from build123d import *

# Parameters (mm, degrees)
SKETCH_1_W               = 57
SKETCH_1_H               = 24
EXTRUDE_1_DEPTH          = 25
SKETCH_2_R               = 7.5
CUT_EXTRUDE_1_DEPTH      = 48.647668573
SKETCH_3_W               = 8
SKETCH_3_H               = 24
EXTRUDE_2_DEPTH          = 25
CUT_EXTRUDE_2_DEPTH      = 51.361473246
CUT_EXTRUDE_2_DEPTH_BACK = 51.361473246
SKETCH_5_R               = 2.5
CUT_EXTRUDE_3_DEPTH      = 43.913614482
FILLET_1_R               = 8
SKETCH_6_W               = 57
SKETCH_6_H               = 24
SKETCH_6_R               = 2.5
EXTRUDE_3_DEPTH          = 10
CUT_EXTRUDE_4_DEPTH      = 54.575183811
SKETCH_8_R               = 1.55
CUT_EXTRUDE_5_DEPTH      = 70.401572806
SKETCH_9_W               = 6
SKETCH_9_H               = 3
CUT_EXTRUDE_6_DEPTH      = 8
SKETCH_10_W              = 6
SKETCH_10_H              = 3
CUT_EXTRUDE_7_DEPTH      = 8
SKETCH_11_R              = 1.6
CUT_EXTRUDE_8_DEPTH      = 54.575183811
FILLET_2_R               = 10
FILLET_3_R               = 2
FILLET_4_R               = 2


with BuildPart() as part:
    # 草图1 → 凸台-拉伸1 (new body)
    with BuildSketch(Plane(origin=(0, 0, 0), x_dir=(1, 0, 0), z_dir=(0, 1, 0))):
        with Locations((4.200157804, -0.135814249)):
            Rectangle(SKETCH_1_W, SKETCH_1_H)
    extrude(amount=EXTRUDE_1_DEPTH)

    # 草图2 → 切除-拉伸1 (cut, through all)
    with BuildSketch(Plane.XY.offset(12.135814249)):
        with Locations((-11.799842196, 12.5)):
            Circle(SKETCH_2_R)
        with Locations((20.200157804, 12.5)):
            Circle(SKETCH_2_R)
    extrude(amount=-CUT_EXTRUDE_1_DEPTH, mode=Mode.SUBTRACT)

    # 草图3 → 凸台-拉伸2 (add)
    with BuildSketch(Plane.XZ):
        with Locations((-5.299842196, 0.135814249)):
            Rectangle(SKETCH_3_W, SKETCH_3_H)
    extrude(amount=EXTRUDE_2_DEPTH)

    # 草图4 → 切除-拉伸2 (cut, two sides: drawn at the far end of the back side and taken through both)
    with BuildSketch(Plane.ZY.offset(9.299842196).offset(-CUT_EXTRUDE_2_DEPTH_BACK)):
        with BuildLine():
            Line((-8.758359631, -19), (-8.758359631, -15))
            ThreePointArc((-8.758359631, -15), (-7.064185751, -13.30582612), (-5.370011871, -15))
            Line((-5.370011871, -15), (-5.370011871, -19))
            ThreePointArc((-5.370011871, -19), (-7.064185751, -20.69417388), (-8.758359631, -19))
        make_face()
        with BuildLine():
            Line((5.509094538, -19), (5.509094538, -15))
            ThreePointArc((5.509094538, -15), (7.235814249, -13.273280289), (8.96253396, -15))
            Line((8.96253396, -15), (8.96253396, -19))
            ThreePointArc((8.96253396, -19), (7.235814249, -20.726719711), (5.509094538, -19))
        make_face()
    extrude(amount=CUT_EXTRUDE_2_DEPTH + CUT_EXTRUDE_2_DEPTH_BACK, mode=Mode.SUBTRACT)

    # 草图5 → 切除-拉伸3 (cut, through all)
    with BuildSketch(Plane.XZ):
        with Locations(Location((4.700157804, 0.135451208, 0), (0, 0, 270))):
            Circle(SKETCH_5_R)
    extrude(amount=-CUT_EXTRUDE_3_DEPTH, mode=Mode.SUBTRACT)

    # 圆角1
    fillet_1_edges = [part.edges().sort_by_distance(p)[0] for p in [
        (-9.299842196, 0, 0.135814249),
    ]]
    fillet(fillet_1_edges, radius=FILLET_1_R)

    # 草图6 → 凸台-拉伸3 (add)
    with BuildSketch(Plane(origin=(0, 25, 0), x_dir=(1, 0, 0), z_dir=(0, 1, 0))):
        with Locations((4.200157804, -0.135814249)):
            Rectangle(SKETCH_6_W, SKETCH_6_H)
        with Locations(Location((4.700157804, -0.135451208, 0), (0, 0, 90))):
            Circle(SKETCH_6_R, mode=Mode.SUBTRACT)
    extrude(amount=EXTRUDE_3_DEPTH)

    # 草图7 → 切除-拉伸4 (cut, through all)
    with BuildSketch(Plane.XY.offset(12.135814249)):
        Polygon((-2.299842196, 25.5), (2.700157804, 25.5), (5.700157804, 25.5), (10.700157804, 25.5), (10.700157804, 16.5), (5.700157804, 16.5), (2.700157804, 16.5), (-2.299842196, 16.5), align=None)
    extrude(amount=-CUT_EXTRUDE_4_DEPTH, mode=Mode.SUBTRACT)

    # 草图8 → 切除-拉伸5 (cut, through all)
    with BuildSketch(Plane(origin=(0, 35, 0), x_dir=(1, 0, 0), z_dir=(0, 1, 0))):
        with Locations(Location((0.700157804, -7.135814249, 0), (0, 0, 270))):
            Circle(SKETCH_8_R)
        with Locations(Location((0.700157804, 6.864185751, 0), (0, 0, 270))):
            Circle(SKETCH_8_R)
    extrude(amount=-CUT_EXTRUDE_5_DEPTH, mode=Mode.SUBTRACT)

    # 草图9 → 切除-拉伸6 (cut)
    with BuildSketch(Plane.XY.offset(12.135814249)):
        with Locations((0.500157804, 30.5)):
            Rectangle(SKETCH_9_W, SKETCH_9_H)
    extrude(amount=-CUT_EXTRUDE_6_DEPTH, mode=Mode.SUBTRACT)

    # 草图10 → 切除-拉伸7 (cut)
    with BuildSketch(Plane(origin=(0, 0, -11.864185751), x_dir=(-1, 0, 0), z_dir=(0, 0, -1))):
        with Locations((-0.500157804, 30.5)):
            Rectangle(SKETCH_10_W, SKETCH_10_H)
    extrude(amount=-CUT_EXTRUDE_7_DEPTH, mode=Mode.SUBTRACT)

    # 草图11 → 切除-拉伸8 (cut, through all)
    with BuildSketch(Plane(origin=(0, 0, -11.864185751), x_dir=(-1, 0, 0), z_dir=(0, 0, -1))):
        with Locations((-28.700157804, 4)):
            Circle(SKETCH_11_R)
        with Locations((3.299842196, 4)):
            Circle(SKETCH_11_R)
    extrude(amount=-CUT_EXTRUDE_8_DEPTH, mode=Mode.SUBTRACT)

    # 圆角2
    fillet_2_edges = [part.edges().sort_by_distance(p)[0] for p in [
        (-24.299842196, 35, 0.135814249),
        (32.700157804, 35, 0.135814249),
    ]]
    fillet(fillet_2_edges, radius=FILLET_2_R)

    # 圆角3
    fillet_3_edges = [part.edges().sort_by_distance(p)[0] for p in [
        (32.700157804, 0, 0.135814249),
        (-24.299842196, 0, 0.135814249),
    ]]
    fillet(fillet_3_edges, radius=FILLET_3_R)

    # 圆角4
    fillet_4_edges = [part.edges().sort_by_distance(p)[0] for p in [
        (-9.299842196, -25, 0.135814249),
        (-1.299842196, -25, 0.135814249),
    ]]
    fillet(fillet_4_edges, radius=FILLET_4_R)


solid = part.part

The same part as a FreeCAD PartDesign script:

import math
import FreeCAD as App
import Part
import Sketcher
from FreeCAD import Vector
Q = App.Units.Quantity


def edges_at(feature, points):
    """Names of the edges that pass closest to the given points."""
    edges = feature.Shape.Edges
    near = lambda p: min(range(len(edges)), key=lambda i: edges[i].distToShape(Part.Vertex(*p))[0])
    return sorted({f"Edge{near(p) + 1}" for p in points})

doc = App.newDocument("Part")
body = doc.addObject("PartDesign::Body", "Body")

# Sketch on XZ plane
sketch1 = body.newObject("Sketcher::SketchObject", "Sketch")
sketch1.AttachmentSupport = (doc.getObject("XZ_Plane"), [""])
sketch1.MapMode = "FlatFace"
sketch1.addGeometry([
    Part.LineSegment(Vector(-24.299842, -11.864186, 0), Vector(-24.299842, 12.135814, 0)),
    Part.LineSegment(Vector(-24.299842, 12.135814, 0), Vector(32.700158, 12.135814, 0)),
    Part.LineSegment(Vector(32.700158, 12.135814, 0), Vector(32.700158, -11.864186, 0)),
    Part.LineSegment(Vector(32.700158, -11.864186, 0), Vector(-24.299842, -11.864186, 0)),
], False)
sketch1.addConstraint([
    Sketcher.Constraint("Coincident", 0, 2, 1, 1),
    Sketcher.Constraint("Coincident", 1, 2, 2, 1),
    Sketcher.Constraint("Coincident", 2, 2, 3, 1),
    Sketcher.Constraint("Coincident", 3, 2, 0, 1),
    Sketcher.Constraint("Vertical", 0),
    Sketcher.Constraint("Horizontal", 1),
    Sketcher.Constraint("Vertical", 2),
    Sketcher.Constraint("Horizontal", 3),
    Sketcher.Constraint("DistanceX", 1, 1, 1, 2, Q("57 mm")),
    Sketcher.Constraint("DistanceY", 0, 1, 0, 2, Q("24 mm")),
    Sketcher.Constraint("DistanceX", 0, 2, -1, 1, Q("24.299842 mm")),
    Sketcher.Constraint("DistanceY", -1, 1, 0, 2, Q("12.135814 mm")),
])
pad1 = body.newObject("PartDesign::Pad", "Pad")
pad1.Profile = sketch1
pad1.Length = 25
pad1.Reversed = True

# Sketch on XY plane
sketch2 = body.newObject("Sketcher::SketchObject", "Sketch001")
sketch2.AttachmentSupport = (doc.getObject("XY_Plane"), [""])
sketch2.MapMode = "FlatFace"
sketch2.AttachmentOffset = App.Placement(Vector(0, 0, 12.135814), App.Rotation())
sketch2.addGeometry([
    Part.Circle(Vector(-11.799842, 12.5, 0), Vector(0, 0, 1), 7.5),
    Part.Circle(Vector(20.200158, 12.5, 0), Vector(0, 0, 1), 7.5),
], False)
sketch2.addConstraint([
    Sketcher.Constraint("Equal", 0, 1),
    Sketcher.Constraint("Horizontal", 0, 3, 1, 3),
    Sketcher.Constraint("Diameter", 0, Q("15 mm")),
    Sketcher.Constraint("DistanceX", 0, 3, 1, 3, Q("32 mm")),
    Sketcher.Constraint("DistanceY", -1, 1, 0, 3, Q("12.5 mm")),
    Sketcher.Constraint("DistanceX", 0, 3, -1, 1, Q("11.799842 mm")),
])
pocket1 = body.newObject("PartDesign::Pocket", "Pocket")
pocket1.Profile = sketch2
pocket1.Type = "ThroughAll"

# Sketch on XZ plane
sketch3 = body.newObject("Sketcher::SketchObject", "Sketch002")
sketch3.AttachmentSupport = (doc.getObject("XZ_Plane"), [""])
sketch3.MapMode = "FlatFace"
sketch3.addGeometry([
    Part.LineSegment(Vector(-9.299842, 12.135814, 0), Vector(-9.299842, -11.864186, 0)),
    Part.LineSegment(Vector(-9.299842, -11.864186, 0), Vector(-1.299842, -11.864186, 0)),
    Part.LineSegment(Vector(-1.299842, -11.864186, 0), Vector(-1.299842, 12.135814, 0)),
    Part.LineSegment(Vector(-1.299842, 12.135814, 0), Vector(-9.299842, 12.135814, 0)),
], False)
sketch3.addConstraint([
    Sketcher.Constraint("Coincident", 0, 2, 1, 1),
    Sketcher.Constraint("Coincident", 1, 2, 2, 1),
    Sketcher.Constraint("Coincident", 2, 2, 3, 1),
    Sketcher.Constraint("Coincident", 3, 2, 0, 1),
    Sketcher.Constraint("Vertical", 0),
    Sketcher.Constraint("Horizontal", 1),
    Sketcher.Constraint("Vertical", 2),
    Sketcher.Constraint("Horizontal", 3),
    Sketcher.Constraint("DistanceX", 1, 1, 1, 2, Q("8 mm")),
    Sketcher.Constraint("DistanceY", 0, 2, 0, 1, Q("24 mm")),
    Sketcher.Constraint("DistanceX", 0, 2, -1, 1, Q("9.299842 mm")),
    Sketcher.Constraint("DistanceY", 0, 2, -1, 1, Q("11.864186 mm")),
])
pad2 = body.newObject("PartDesign::Pad", "Pad001")
pad2.Profile = sketch3
pad2.Length = 25

# Sketch on YZ plane
sketch4 = body.newObject("Sketcher::SketchObject", "Sketch003")
sketch4.AttachmentSupport = (doc.getObject("YZ_Plane"), [""])
sketch4.MapMode = "FlatFace"
sketch4.AttachmentOffset = App.Placement(Vector(0, 0, -9.299842), App.Rotation())
sketch4.addGeometry([
    Part.LineSegment(Vector(-15, -8.75836, 0), Vector(-19, -8.75836, 0)),  # 0
    Part.ArcOfCircle(Part.Circle(Vector(-19, -7.064186, 0), Vector(0, 0, 1), 1.694174), math.radians(90), math.radians(270)),  # 1
    Part.LineSegment(Vector(-19, -5.370012, 0), Vector(-15, -5.370012, 0)),  # 2
    Part.ArcOfCircle(Part.Circle(Vector(-15, -7.064186, 0), Vector(0, 0, 1), 1.694174), math.radians(-90), math.radians(90)),  # 3
    Part.LineSegment(Vector(-15, 5.509095, 0), Vector(-19, 5.509095, 0)),  # 4
    Part.ArcOfCircle(Part.Circle(Vector(-19, 7.235814, 0), Vector(0, 0, 1), 1.72672), math.radians(90), math.radians(270)),  # 5
    Part.LineSegment(Vector(-19, 8.962534, 0), Vector(-15, 8.962534, 0)),  # 6
    Part.ArcOfCircle(Part.Circle(Vector(-15, 7.235814, 0), Vector(0, 0, 1), 1.72672), math.radians(-90), math.radians(90)),  # 7
], False)
sketch4.addConstraint([
    Sketcher.Constraint("Tangent", 0, 2, 1, 2),
    Sketcher.Constraint("Tangent", 1, 1, 2, 1),
    Sketcher.Constraint("Tangent", 2, 2, 3, 2),
    Sketcher.Constraint("Tangent", 3, 1, 0, 1),
    Sketcher.Constraint("Tangent", 4, 2, 5, 2),
    Sketcher.Constraint("Tangent", 5, 1, 6, 1),
    Sketcher.Constraint("Tangent", 6, 2, 7, 2),
    Sketcher.Constraint("Tangent", 7, 1, 4, 1),
    Sketcher.Constraint("Horizontal", 0),
    Sketcher.Constraint("Horizontal", 2),
    Sketcher.Constraint("Horizontal", 4),
    Sketcher.Constraint("Horizontal", 6),
    Sketcher.Constraint("Vertical", 1, 3, 5, 3),
    Sketcher.Constraint("Vertical", 3, 3, 7, 3),
    Sketcher.Constraint("DistanceX", 0, 2, 0, 1, Q("4 mm")),
    Sketcher.Constraint("DistanceX", 1, 3, -1, 1, Q("19 mm")),
    Sketcher.Constraint("DistanceY", 1, 3, 5, 3, Q("14.3 mm")),
    Sketcher.Constraint("Radius", 5, Q("1.72672 mm")),
    Sketcher.Constraint("Radius", 1, Q("1.694174 mm")),
    Sketcher.Constraint("DistanceY", 0, 2, -1, 1, Q("8.75836 mm")),
])
pocket2 = body.newObject("PartDesign::Pocket", "Pocket001")
pocket2.Profile = sketch4
pocket2.Type = "ThroughAll"
pocket2.Midplane = True

# Sketch on XZ plane
sketch5 = body.newObject("Sketcher::SketchObject", "Sketch004")
sketch5.AttachmentSupport = (doc.getObject("XZ_Plane"), [""])
sketch5.MapMode = "FlatFace"
sketch5.addGeometry(Part.Circle(Vector(4.700158, 0.135451, 0), Vector(0, 0, 1), 2.5), False)
sketch5.addConstraint([
    Sketcher.Constraint("Diameter", 0, Q("5 mm")),
    Sketcher.Constraint("DistanceY", -1, 1, 0, 3, Q("0.135451 mm")),
    Sketcher.Constraint("DistanceX", -1, 1, 0, 3, Q("4.700158 mm")),
])
pocket3 = body.newObject("PartDesign::Pocket", "Pocket002")
pocket3.Profile = sketch5
pocket3.Type = "ThroughAll"
doc.recompute()

fillet = body.newObject("PartDesign::Fillet", "Fillet")
fillet.Base = (pocket3, edges_at(pocket3, [(-9.3, 0, 0.136)]))
fillet.Radius = 8

# Sketch on XZ plane
sketch6 = body.newObject("Sketcher::SketchObject", "Sketch005")
sketch6.AttachmentSupport = (doc.getObject("XZ_Plane"), [""])
sketch6.MapMode = "FlatFace"
sketch6.AttachmentOffset = App.Placement(Vector(0, 0, -25), App.Rotation())
sketch6.addGeometry([
    Part.LineSegment(Vector(-24.299842, -11.864186, 0), Vector(-24.299842, 12.135814, 0)),  # 0
    Part.LineSegment(Vector(-24.299842, 12.135814, 0), Vector(32.700158, 12.135814, 0)),  # 1
    Part.LineSegment(Vector(32.700158, 12.135814, 0), Vector(32.700158, -11.864186, 0)),  # 2
    Part.LineSegment(Vector(32.700158, -11.864186, 0), Vector(-24.299842, -11.864186, 0)),  # 3
    Part.Circle(Vector(4.700158, 0.135451, 0), Vector(0, 0, 1), 2.5),  # 4
], False)
sketch6.addConstraint([
    Sketcher.Constraint("Coincident", 0, 2, 1, 1),
    Sketcher.Constraint("Coincident", 1, 2, 2, 1),
    Sketcher.Constraint("Coincident", 2, 2, 3, 1),
    Sketcher.Constraint("Coincident", 3, 2, 0, 1),
    Sketcher.Constraint("Vertical", 0),
    Sketcher.Constraint("Horizontal", 1),
    Sketcher.Constraint("Vertical", 2),
    Sketcher.Constraint("Horizontal", 3),
    Sketcher.Constraint("Diameter", 4, Q("5 mm")),
    Sketcher.Constraint("DistanceX", 1, 1, 1, 2, Q("57 mm")),
    Sketcher.Constraint("DistanceY", 0, 1, 0, 2, Q("24 mm")),
    Sketcher.Constraint("DistanceX", 0, 2, 4, 3, Q("29 mm")),
    Sketcher.Constraint("DistanceY", -1, 1, 4, 3, Q("0.135451 mm")),
    Sketcher.Constraint("DistanceX", -1, 1, 4, 3, Q("4.700158 mm")),
    Sketcher.Constraint("DistanceY", -1, 1, 0, 2, Q("12.135814 mm")),
])
pad3 = body.newObject("PartDesign::Pad", "Pad002")
pad3.Profile = sketch6
pad3.Length = 10
pad3.Reversed = True

# Sketch on XY plane
sketch7 = body.newObject("Sketcher::SketchObject", "Sketch006")
sketch7.AttachmentSupport = (doc.getObject("XY_Plane"), [""])
sketch7.MapMode = "FlatFace"
sketch7.AttachmentOffset = App.Placement(Vector(0, 0, 12.135814), App.Rotation())
sketch7.addGeometry([
    Part.LineSegment(Vector(10.700158, 25.5, 0), Vector(-2.299842, 25.5, 0)),
    Part.LineSegment(Vector(-2.299842, 25.5, 0), Vector(-2.299842, 16.5, 0)),
    Part.LineSegment(Vector(-2.299842, 16.5, 0), Vector(10.700158, 16.5, 0)),
    Part.LineSegment(Vector(10.700158, 16.5, 0), Vector(10.700158, 25.5, 0)),
], False)
sketch7.addConstraint([
    Sketcher.Constraint("Coincident", 0, 2, 1, 1),
    Sketcher.Constraint("Coincident", 1, 2, 2, 1),
    Sketcher.Constraint("Coincident", 2, 2, 3, 1),
    Sketcher.Constraint("Coincident", 3, 2, 0, 1),
    Sketcher.Constraint("Horizontal", 0),
    Sketcher.Constraint("Vertical", 1),
    Sketcher.Constraint("Horizontal", 2),
    Sketcher.Constraint("Vertical", 3),
    Sketcher.Constraint("DistanceX", 0, 2, 0, 1, Q("13 mm")),
    Sketcher.Constraint("DistanceY", 1, 2, 1, 1, Q("9 mm")),
    Sketcher.Constraint("DistanceY", -1, 1, 0, 2, Q("25.5 mm")),
    Sketcher.Constraint("DistanceX", 0, 2, -1, 1, Q("2.299842 mm")),
])
pocket4 = body.newObject("PartDesign::Pocket", "Pocket003")
pocket4.Profile = sketch7
pocket4.Type = "ThroughAll"

# Sketch on XZ plane
sketch8 = body.newObject("Sketcher::SketchObject", "Sketch007")
sketch8.AttachmentSupport = (doc.getObject("XZ_Plane"), [""])
sketch8.MapMode = "FlatFace"
sketch8.AttachmentOffset = App.Placement(Vector(0, 0, -35), App.Rotation())
sketch8.addGeometry([
    Part.Circle(Vector(0.700158, 7.135814, 0), Vector(0, 0, 1), 1.55),
    Part.Circle(Vector(0.700158, -6.864186, 0), Vector(0, 0, 1), 1.55),
], False)
sketch8.addConstraint([
    Sketcher.Constraint("Equal", 0, 1),
    Sketcher.Constraint("Vertical", 0, 3, 1, 3),
    Sketcher.Constraint("Diameter", 0, Q("3.1 mm")),
    Sketcher.Constraint("DistanceY", 1, 3, 0, 3, Q("14 mm")),
    Sketcher.Constraint("DistanceX", -1, 1, 0, 3, Q("0.700158 mm")),
    Sketcher.Constraint("DistanceY", -1, 1, 0, 3, Q("7.135814 mm")),
])
pocket5 = body.newObject("PartDesign::Pocket", "Pocket004")
pocket5.Profile = sketch8
pocket5.Type = "ThroughAll"
pocket5.Reversed = True

# Sketch on XY plane
sketch9 = body.newObject("Sketcher::SketchObject", "Sketch008")
sketch9.AttachmentSupport = (doc.getObject("XY_Plane"), [""])
sketch9.MapMode = "FlatFace"
sketch9.AttachmentOffset = App.Placement(Vector(0, 0, 12.135814), App.Rotation())
sketch9.addGeometry([
    Part.LineSegment(Vector(-2.499842, 32, 0), Vector(-2.499842, 29, 0)),
    Part.LineSegment(Vector(-2.499842, 29, 0), Vector(3.500158, 29, 0)),
    Part.LineSegment(Vector(3.500158, 29, 0), Vector(3.500158, 32, 0)),
    Part.LineSegment(Vector(3.500158, 32, 0), Vector(-2.499842, 32, 0)),
], False)
sketch9.addConstraint([
    Sketcher.Constraint("Coincident", 0, 2, 1, 1),
    Sketcher.Constraint("Coincident", 1, 2, 2, 1),
    Sketcher.Constraint("Coincident", 2, 2, 3, 1),
    Sketcher.Constraint("Coincident", 3, 2, 0, 1),
    Sketcher.Constraint("Vertical", 0),
    Sketcher.Constraint("Horizontal", 1),
    Sketcher.Constraint("Vertical", 2),
    Sketcher.Constraint("Horizontal", 3),
    Sketcher.Constraint("DistanceX", 1, 1, 1, 2, Q("6 mm")),
    Sketcher.Constraint("DistanceY", 0, 2, 0, 1, Q("3 mm")),
    Sketcher.Constraint("DistanceY", -1, 1, 0, 2, Q("29 mm")),
    Sketcher.Constraint("DistanceX", 0, 2, -1, 1, Q("2.499842 mm")),
])
pocket6 = body.newObject("PartDesign::Pocket", "Pocket005")
pocket6.Profile = sketch9
pocket6.Length = 8

# Sketch on XY plane
sketch10 = body.newObject("Sketcher::SketchObject", "Sketch009")
sketch10.AttachmentSupport = (doc.getObject("XY_Plane"), [""])
sketch10.MapMode = "FlatFace"
sketch10.AttachmentOffset = App.Placement(Vector(0, 0, -11.864186), App.Rotation())
sketch10.addGeometry([
    Part.LineSegment(Vector(3.500158, 32, 0), Vector(3.500158, 29, 0)),
    Part.LineSegment(Vector(3.500158, 29, 0), Vector(-2.499842, 29, 0)),
    Part.LineSegment(Vector(-2.499842, 29, 0), Vector(-2.499842, 32, 0)),
    Part.LineSegment(Vector(-2.499842, 32, 0), Vector(3.500158, 32, 0)),
], False)
sketch10.addConstraint([
    Sketcher.Constraint("Coincident", 0, 2, 1, 1),
    Sketcher.Constraint("Coincident", 1, 2, 2, 1),
    Sketcher.Constraint("Coincident", 2, 2, 3, 1),
    Sketcher.Constraint("Coincident", 3, 2, 0, 1),
    Sketcher.Constraint("Vertical", 0),
    Sketcher.Constraint("Horizontal", 1),
    Sketcher.Constraint("Vertical", 2),
    Sketcher.Constraint("Horizontal", 3),
    Sketcher.Constraint("DistanceX", 1, 2, 1, 1, Q("6 mm")),
    Sketcher.Constraint("DistanceY", 0, 2, 0, 1, Q("3 mm")),
    Sketcher.Constraint("DistanceY", -1, 1, 0, 2, Q("29 mm")),
    Sketcher.Constraint("DistanceX", -1, 1, 0, 2, Q("3.500158 mm")),
])
pocket7 = body.newObject("PartDesign::Pocket", "Pocket006")
pocket7.Profile = sketch10
pocket7.Length = 8
pocket7.Reversed = True

# Sketch on XY plane
sketch11 = body.newObject("Sketcher::SketchObject", "Sketch010")
sketch11.AttachmentSupport = (doc.getObject("XY_Plane"), [""])
sketch11.MapMode = "FlatFace"
sketch11.AttachmentOffset = App.Placement(Vector(0, 0, -11.864186), App.Rotation())
sketch11.addGeometry([
    Part.Circle(Vector(28.700158, 4, 0), Vector(0, 0, 1), 1.6),
    Part.Circle(Vector(-3.299842, 4, 0), Vector(0, 0, 1), 1.6),
], False)
sketch11.addConstraint([
    Sketcher.Constraint("Equal", 0, 1),
    Sketcher.Constraint("Horizontal", 0, 3, 1, 3),
    Sketcher.Constraint("Diameter", 0, Q("3.2 mm")),
    Sketcher.Constraint("DistanceY", -1, 1, 0, 3, Q("4 mm")),
    Sketcher.Constraint("DistanceX", 1, 3, 0, 3, Q("32 mm")),
    Sketcher.Constraint("DistanceX", -1, 1, 0, 3, Q("28.700158 mm")),
])
pocket8 = body.newObject("PartDesign::Pocket", "Pocket007")
pocket8.Profile = sketch11
pocket8.Type = "ThroughAll"
pocket8.Reversed = True
doc.recompute()

fillet2 = body.newObject("PartDesign::Fillet", "Fillet001")
fillet2.Base = (pocket8, edges_at(pocket8, [(-24.3, 35, 0.136), (32.7, 35, 0.136)]))
fillet2.Radius = 10
doc.recompute()

fillet3 = body.newObject("PartDesign::Fillet", "Fillet002")
fillet3.Base = (fillet2, edges_at(fillet2, [(32.7, 0, 0.136), (-24.3, 0, 0.136)]))
fillet3.Radius = 2
doc.recompute()

fillet4 = body.newObject("PartDesign::Fillet", "Fillet003")
fillet4.Base = (fillet3, edges_at(fillet3, [(-9.3, -25, 0.136), (-1.3, -25, 0.136)]))
fillet4.Radius = 2

doc.recompute()
